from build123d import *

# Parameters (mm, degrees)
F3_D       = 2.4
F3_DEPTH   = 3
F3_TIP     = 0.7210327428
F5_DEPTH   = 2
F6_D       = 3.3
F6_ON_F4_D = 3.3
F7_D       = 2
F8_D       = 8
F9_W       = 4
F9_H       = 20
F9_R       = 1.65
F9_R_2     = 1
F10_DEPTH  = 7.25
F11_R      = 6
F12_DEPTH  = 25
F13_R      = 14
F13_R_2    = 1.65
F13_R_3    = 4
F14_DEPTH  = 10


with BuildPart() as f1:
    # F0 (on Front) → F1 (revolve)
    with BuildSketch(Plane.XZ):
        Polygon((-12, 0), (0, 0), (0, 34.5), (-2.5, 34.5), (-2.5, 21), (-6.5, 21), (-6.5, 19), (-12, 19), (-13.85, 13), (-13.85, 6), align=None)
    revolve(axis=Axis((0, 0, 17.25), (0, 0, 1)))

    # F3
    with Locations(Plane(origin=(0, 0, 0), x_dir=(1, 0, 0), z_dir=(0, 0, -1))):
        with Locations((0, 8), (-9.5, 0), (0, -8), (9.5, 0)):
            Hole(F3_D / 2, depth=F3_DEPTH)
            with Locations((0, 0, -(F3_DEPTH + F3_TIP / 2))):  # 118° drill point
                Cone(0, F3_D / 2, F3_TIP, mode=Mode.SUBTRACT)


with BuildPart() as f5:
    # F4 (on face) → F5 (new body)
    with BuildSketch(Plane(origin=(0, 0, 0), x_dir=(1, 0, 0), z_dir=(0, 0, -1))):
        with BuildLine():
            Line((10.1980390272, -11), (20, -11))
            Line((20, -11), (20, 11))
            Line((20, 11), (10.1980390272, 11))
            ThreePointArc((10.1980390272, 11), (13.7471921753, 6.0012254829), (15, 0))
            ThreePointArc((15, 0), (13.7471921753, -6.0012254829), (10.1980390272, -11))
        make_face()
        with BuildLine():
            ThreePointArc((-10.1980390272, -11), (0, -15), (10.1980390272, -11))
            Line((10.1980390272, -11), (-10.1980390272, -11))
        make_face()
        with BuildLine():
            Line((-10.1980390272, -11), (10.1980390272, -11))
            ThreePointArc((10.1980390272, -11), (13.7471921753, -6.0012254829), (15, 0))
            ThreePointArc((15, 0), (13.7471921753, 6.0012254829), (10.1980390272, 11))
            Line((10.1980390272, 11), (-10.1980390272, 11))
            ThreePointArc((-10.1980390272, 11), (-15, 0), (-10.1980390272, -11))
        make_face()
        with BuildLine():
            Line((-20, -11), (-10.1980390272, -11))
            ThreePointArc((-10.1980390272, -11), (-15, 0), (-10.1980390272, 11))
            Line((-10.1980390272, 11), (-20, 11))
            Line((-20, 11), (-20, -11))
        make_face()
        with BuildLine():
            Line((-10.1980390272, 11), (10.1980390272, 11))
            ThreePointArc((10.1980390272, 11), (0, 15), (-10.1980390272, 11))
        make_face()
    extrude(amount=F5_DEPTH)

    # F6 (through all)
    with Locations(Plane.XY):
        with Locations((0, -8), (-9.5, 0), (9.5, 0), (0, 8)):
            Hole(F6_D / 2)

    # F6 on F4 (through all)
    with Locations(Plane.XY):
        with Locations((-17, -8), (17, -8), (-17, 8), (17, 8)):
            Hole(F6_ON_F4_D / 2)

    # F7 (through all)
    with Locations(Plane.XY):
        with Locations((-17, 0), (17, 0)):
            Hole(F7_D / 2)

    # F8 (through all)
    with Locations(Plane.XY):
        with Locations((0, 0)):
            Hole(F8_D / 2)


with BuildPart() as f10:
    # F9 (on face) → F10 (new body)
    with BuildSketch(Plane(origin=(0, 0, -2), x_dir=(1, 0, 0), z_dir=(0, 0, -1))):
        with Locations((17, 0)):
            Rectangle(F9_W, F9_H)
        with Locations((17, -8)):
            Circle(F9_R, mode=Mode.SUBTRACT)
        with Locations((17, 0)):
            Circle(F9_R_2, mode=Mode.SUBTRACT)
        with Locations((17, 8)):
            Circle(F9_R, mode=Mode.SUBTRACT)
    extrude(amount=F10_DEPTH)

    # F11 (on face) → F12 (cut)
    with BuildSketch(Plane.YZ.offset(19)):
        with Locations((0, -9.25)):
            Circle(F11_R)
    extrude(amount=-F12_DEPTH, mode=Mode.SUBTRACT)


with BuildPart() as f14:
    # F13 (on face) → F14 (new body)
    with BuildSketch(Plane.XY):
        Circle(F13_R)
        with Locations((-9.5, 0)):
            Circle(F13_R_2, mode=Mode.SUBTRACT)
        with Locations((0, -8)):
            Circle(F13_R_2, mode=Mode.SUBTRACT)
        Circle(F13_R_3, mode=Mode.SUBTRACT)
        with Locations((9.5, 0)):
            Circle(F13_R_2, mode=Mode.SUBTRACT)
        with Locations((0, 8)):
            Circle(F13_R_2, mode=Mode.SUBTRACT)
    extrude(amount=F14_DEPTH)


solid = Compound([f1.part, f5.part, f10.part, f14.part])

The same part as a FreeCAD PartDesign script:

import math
import FreeCAD as App
import Part
import Sketcher
from FreeCAD import Vector

doc = App.newDocument("Part")
body = doc.addObject("PartDesign::Body", "Body")

# Sketch on XZ plane
sketch1 = body.newObject("Sketcher::SketchObject", "Sketch")
sketch1.AttachmentSupport = (doc.getObject("XZ_Plane"), [""])
sketch1.MapMode = "FlatFace"
sketch1.addGeometry([
    Part.LineSegment(Vector(-12, 0, 0), Vector(0, 0, 0)),  # 0
    Part.LineSegment(Vector(0, 0, 0), Vector(0, 34.5, 0)),  # 1
    Part.LineSegment(Vector(0, 34.5, 0), Vector(-2.5, 34.5, 0)),  # 2
    Part.LineSegment(Vector(-2.5, 34.5, 0), Vector(-2.5, 21, 0)),  # 3
    Part.LineSegment(Vector(-2.5, 21, 0), Vector(-6.5, 21, 0)),  # 4
    Part.LineSegment(Vector(-6.5, 21, 0), Vector(-6.5, 19, 0)),  # 5
    Part.LineSegment(Vector(-6.5, 19, 0), Vector(-12, 19, 0)),  # 6
    Part.LineSegment(Vector(-12, 19, 0), Vector(-13.8, 13, 0)),  # 7
    Part.LineSegment(Vector(-13.8, 13, 0), Vector(-13.8, 6, 0)),  # 8
    Part.LineSegment(Vector(-13.8, 6, 0), Vector(-12, 0, 0)),  # 9
], False)
sketch1.addConstraint([
    Sketcher.Constraint("Coincident", 0, 2, 1, 1),
    Sketcher.Constraint("Coincident", 1, 2, 2, 1),
    Sketcher.Constraint("Coincident", 2, 2, 3, 1),
    Sketcher.Constraint("Coincident", 3, 2, 4, 1),
    Sketcher.Constraint("Coincident", 4, 2, 5, 1),
    Sketcher.Constraint("Coincident", 5, 2, 6, 1),
    Sketcher.Constraint("Coincident", 6, 2, 7, 1),
    Sketcher.Constraint("Coincident", 7, 2, 8, 1),
    Sketcher.Constraint("Coincident", 8, 2, 9, 1),
    Sketcher.Constraint("Coincident", 9, 2, 0, 1),
    Sketcher.Constraint("Horizontal", 0),
    Sketcher.Constraint("Vertical", 1),
    Sketcher.Constraint("Horizontal", 2),
    Sketcher.Constraint("Vertical", 3),
    Sketcher.Constraint("Horizontal", 4),
    Sketcher.Constraint("Vertical", 5),
    Sketcher.Constraint("Horizontal", 6),
    Sketcher.Constraint("Vertical", 8),
    Sketcher.Constraint("Coincident", 0, 2, -1, 1),
    Sketcher.Constraint("Vertical", 6, 2, 9, 2),
    Sketcher.Constraint("Equal", 7, 9),
    Sketcher.Constraint("DistanceX", 0, 1, 0, 2, 12.0),
    Sketcher.Constraint("DistanceX", 4, 2, 4, 1, 4.0),
    Sketcher.Constraint("DistanceY", 5, 2, 5, 1, 2.0),
    Sketcher.Constraint("DistanceY", 8, 2, 8, 1, 7.0),
    Sketcher.Constraint("DistanceX", 2, 2, 2, 1, 2.5),
    Sketcher.Constraint("DistanceY", 1, 1, 1, 2, 34.5),
    Sketcher.Constraint("DistanceY", 3, 2, 3, 1, 13.5),
    Sketcher.Constraint("DistanceX", 7, 2, -1, 1, 13.85),
])
revolution = body.newObject("PartDesign::Revolution", "Revolution")
revolution.Profile = sketch1
revolution.ReferenceAxis = (sketch1, ["V_Axis"])
revolution.Angle = 360

# Sketch on XY plane
sketch2 = body.newObject("Sketcher::SketchObject", "Sketch001")
sketch2.AttachmentSupport = (doc.getObject("XY_Plane"), [""])
sketch2.MapMode = "FlatFace"
sketch2.addGeometry([
    Part.Circle(Vector(0, -8, 0), Vector(0, 0, 1), 1.2),
    Part.Circle(Vector(-9.5, 0, 0), Vector(0, 0, 1), 1.2),
    Part.Circle(Vector(0, 8, 0), Vector(0, 0, 1), 1.2),
    Part.Circle(Vector(9.5, 0, 0), Vector(0, 0, 1), 1.2),
], False)
sketch2.addConstraint([
    Sketcher.Constraint("Equal", 0, 1),
    Sketcher.Constraint("Equal", 1, 2),
    Sketcher.Constraint("Equal", 2, 3),
    Sketcher.Constraint("Symmetric", 0, 3, 2, 3, -1, 1),
    Sketcher.Constraint("Symmetric", 1, 3, 3, 3, -1, 1),
    Sketcher.Constraint("PointOnObject", 0, 3, -2),
    Sketcher.Constraint("PointOnObject", 1, 3, -1),
    Sketcher.Constraint("Diameter", 0, 2.4),
    Sketcher.Constraint("DistanceY", 0, 3, -1, 1, 8.0),
    Sketcher.Constraint("DistanceX", 1, 3, 3, 3, 19.0),
])
doc.recompute()
hole = body.newObject("PartDesign::Hole", "Hole")
hole.Profile = sketch2
hole.ThreadType = "None"
hole.Diameter = 2.4
hole.DepthType = "Dimension"
hole.Depth = 3
hole.DrillPoint = "Angled"
hole.DrillPointAngle = 118
hole.Reversed = True
body2 = doc.addObject("PartDesign::Body", "Body001")

# Sketch on XY plane
sketch3 = body2.newObject("Sketcher::SketchObject", "Sketch002")
sketch3.AttachmentSupport = (doc.getObject("XY_Plane001"), [""])
sketch3.MapMode = "FlatFace"
sketch3.addGeometry([
    Part.LineSegment(Vector(10, 11, 0), Vector(20, 11, 0)),  # 0
    Part.LineSegment(Vector(20, 11, 0), Vector(20, -11, 0)),  # 1
    Part.LineSegment(Vector(20, -11, 0), Vector(10, -11, 0)),  # 2
    Part.ArcOfCircle(Part.Circle(Vector(0, 0, 0), Vector(0, 0, 1), 15), math.radians(-133), math.radians(-47)),  # 3
    Part.LineSegment(Vector(-10, -11, 0), Vector(-20, -11, 0)),  # 4
    Part.LineSegment(Vector(-20, -11, 0), Vector(-20, 11, 0)),  # 5
    Part.LineSegment(Vector(-20, 11, 0), Vector(-10, 11, 0)),  # 6
    Part.ArcOfCircle(Part.Circle(Vector(0, 0, 0), Vector(0, 0, 1), 15), math.radians(47), math.radians(133)),  # 7
], False)
sketch3.addConstraint([
    Sketcher.Constraint("Coincident", 0, 2, 1, 1),
    Sketcher.Constraint("Coincident", 1, 2, 2, 1),
    Sketcher.Constraint("Coincident", 2, 2, 3, 2),
    Sketcher.Constraint("Coincident", 3, 1, 4, 1),
    Sketcher.Constraint("Coincident", 4, 2, 5, 1),
    Sketcher.Constraint("Coincident", 5, 2, 6, 1),
    Sketcher.Constraint("Coincident", 6, 2, 7, 2),
    Sketcher.Constraint("Coincident", 7, 1, 0, 1),
    Sketcher.Constraint("Horizontal", 0),
    Sketcher.Constraint("Vertical", 1),
    Sketcher.Constraint("Horizontal", 2),
    Sketcher.Constraint("Horizontal", 4),
    Sketcher.Constraint("Vertical", 5),
    Sketcher.Constraint("Horizontal", 6),
    Sketcher.Constraint("Coincident", 3, 3, -1, 1),
    Sketcher.Constraint("Coincident", 7, 3, -1, 1),
    Sketcher.Constraint("Equal", 3, 7),
    Sketcher.Constraint("Symmetric", 0, 2, 4, 2, -1, 1),
    Sketcher.Constraint("Horizontal", 2, 2, 3, 1),
    Sketcher.Constraint("Horizontal", 0, 2, 5, 2),
    Sketcher.Constraint("Radius", 3, 15.0),
    Sketcher.Constraint("DistanceY", 1, 2, 1, 1, 22.0),
    Sketcher.Constraint("DistanceX", -1, 1, 0, 2, 20.0),
])
pad1 = body2.newObject("PartDesign::Pad", "Pad")
pad1.Profile = sketch3
pad1.Length = 2
pad1.Reversed = True

# Sketch on XY plane
sketch4 = body2.newObject("Sketcher::SketchObject", "Sketch003")
sketch4.AttachmentSupport = (doc.getObject("XY_Plane001"), [""])
sketch4.MapMode = "FlatFace"
sketch4.addGeometry([
    Part.Circle(Vector(0, -8, 0), Vector(0, 0, 1), 1.6),
    Part.Circle(Vector(-9.5, 0, 0), Vector(0, 0, 1), 1.6),
    Part.Circle(Vector(9.5, 0, 0), Vector(0, 0, 1), 1.6),
    Part.Circle(Vector(0, 8, 0), Vector(0, 0, 1), 1.6),
], False)
sketch4.addConstraint([
    Sketcher.Constraint("Equal", 0, 1),
    Sketcher.Constraint("Equal", 1, 2),
    Sketcher.Constraint("Equal", 2, 3),
    Sketcher.Constraint("Symmetric", 1, 3, 2, 3, -1, 1),
    Sketcher.Constraint("Symmetric", 0, 3, 3, 3, -1, 1),
    Sketcher.Constraint("PointOnObject", 0, 3, -2),
    Sketcher.Constraint("PointOnObject", 1, 3, -1),
    Sketcher.Constraint("Diameter", 0, 3.3),
    Sketcher.Constraint("DistanceY", 0, 3, -1, 1, 8.0),
    Sketcher.Constraint("DistanceX", 1, 3, 2, 3, 19.0),
])
doc.recompute()
hole2 = body2.newObject("PartDesign::Hole", "Hole001")
hole2.Profile = sketch4
hole2.ThreadType = "None"
hole2.Diameter = 3.3
hole2.DepthType = "ThroughAll"

# Sketch on XY plane
sketch5 = body2.newObject("Sketcher::SketchObject", "Sketch004")
sketch5.AttachmentSupport = (doc.getObject("XY_Plane001"), [""])
sketch5.MapMode = "FlatFace"
sketch5.addGeometry([
    Part.Circle(Vector(-17, -8, 0), Vector(0, 0, 1), 1.6),
    Part.Circle(Vector(17, -8, 0), Vector(0, 0, 1), 1.6),
    Part.Circle(Vector(-17, 8, 0), Vector(0, 0, 1), 1.6),
    Part.Circle(Vector(17, 8, 0), Vector(0, 0, 1), 1.6),
], False)
sketch5.addConstraint([
    Sketcher.Constraint("Equal", 0, 1),
    Sketcher.Constraint("Equal", 1, 2),
    Sketcher.Constraint("Equal", 2, 3),
    Sketcher.Constraint("Symmetric", 1, 3, 2, 3, -1, 1),
    Sketcher.Constraint("Symmetric", 0, 3, 3, 3, -1, 1),
    Sketcher.Constraint("Symmetric", 0, 3, 1, 3, -2),
    Sketcher.Constraint("Diameter", 0, 3.3),
    Sketcher.Constraint("DistanceX", 0, 3, -1, 1, 17.0),
    Sketcher.Constraint("DistanceY", 0, 3, -1, 1, 8.0),
])
doc.recompute()
hole3 = body2.newObject("PartDesign::Hole", "Hole002")
hole3.Profile = sketch5
hole3.ThreadType = "None"
hole3.Diameter = 3.3
hole3.DepthType = "ThroughAll"

# Sketch on XY plane
sketch6 = body2.newObject("Sketcher::SketchObject", "Sketch005")
sketch6.AttachmentSupport = (doc.getObject("XY_Plane001"), [""])
sketch6.MapMode = "FlatFace"
sketch6.addGeometry([
    Part.Circle(Vector(-17, 0, 0), Vector(0, 0, 1), 1),
    Part.Circle(Vector(17, 0, 0), Vector(0, 0, 1), 1),
], False)
sketch6.addConstraint([
    Sketcher.Constraint("Equal", 0, 1),
    Sketcher.Constraint("Symmetric", 0, 3, 1, 3, -1, 1),
    Sketcher.Constraint("PointOnObject", 0, 3, -1),
    Sketcher.Constraint("Diameter", 0, 2.0),
    Sketcher.Constraint("DistanceX", 0, 3, -1, 1, 17.0),
])
doc.recompute()
hole4 = body2.newObject("PartDesign::Hole", "Hole003")
hole4.Profile = sketch6
hole4.ThreadType = "None"
hole4.Diameter = 2
hole4.DepthType = "ThroughAll"

# Sketch on XY plane
sketch7 = body2.newObject("Sketcher::SketchObject", "Sketch006")
sketch7.AttachmentSupport = (doc.getObject("XY_Plane001"), [""])
sketch7.MapMode = "FlatFace"
sketch7.addGeometry(Part.Circle(Vector(0, 0, 0), Vector(0, 0, 1), 4), False)
sketch7.addConstraint([
    Sketcher.Constraint("Coincident", 0, 3, -1, 1),
    Sketcher.Constraint("Diameter", 0, 8.0),
])
doc.recompute()
hole5 = body2.newObject("PartDesign::Hole", "Hole004")
hole5.Profile = sketch7
hole5.ThreadType = "None"
hole5.Diameter = 8
hole5.DepthType = "ThroughAll"
body3 = doc.addObject("PartDesign::Body", "Body002")

# Sketch on XY plane
sketch8 = body3.newObject("Sketcher::SketchObject", "Sketch007")
sketch8.AttachmentSupport = (doc.getObject("XY_Plane002"), [""])
sketch8.MapMode = "FlatFace"
sketch8.AttachmentOffset = App.Placement(Vector(0, 0, -2), App.Rotation())
sketch8.addGeometry([
    Part.LineSegment(Vector(15, -10, 0), Vector(15, 10, 0)),  # 0
    Part.LineSegment(Vector(15, 10, 0), Vector(19, 10, 0)),  # 1
    Part.LineSegment(Vector(19, 10, 0), Vector(19, -10, 0)),  # 2
    Part.LineSegment(Vector(19, -10, 0), Vector(15, -10, 0)),  # 3
    Part.Circle(Vector(17, 8, 0), Vector(0, 0, 1), 1.6),  # 4
    Part.Circle(Vector(17, 0, 0), Vector(0, 0, 1), 1),  # 5
    Part.Circle(Vector(17, -8, 0), Vector(0, 0, 1), 1.6),  # 6
], False)
sketch8.addConstraint([
    Sketcher.Constraint("Coincident", 0, 2, 1, 1),
    Sketcher.Constraint("Coincident", 1, 2, 2, 1),
    Sketcher.Constraint("Coincident", 2, 2, 3, 1),
    Sketcher.Constraint("Coincident", 3, 2, 0, 1),
    Sketcher.Constraint("Vertical", 0),
    Sketcher.Constraint("Horizontal", 1),
    Sketcher.Constraint("Vertical", 2),
    Sketcher.Constraint("Horizontal", 3),
    Sketcher.Constraint("Equal", 4, 6),
    Sketcher.Constraint("Symmetric", 4, 3, 6, 3, -1),
    Sketcher.Constraint("PointOnObject", 5, 3, -1),
    Sketcher.Constraint("Vertical", 4, 3, 5, 3),
    Sketcher.Constraint("Diameter", 5, 2.0),
    Sketcher.Constraint("Diameter", 4, 3.3),
    Sketcher.Constraint("DistanceX", 1, 1, 1, 2, 4.0),
    Sketcher.Constraint("DistanceY", 0, 1, 0, 2, 20.0),
    Sketcher.Constraint("DistanceX", -1, 1, 4, 3, 17.0),
    Sketcher.Constraint("DistanceY", -1, 1, 4, 3, 8.0),
    Sketcher.Constraint("DistanceX", -1, 1, 0, 2, 15.0),
    Sketcher.Constraint("DistanceY", -1, 1, 0, 2, 10.0),
])
pad2 = body3.newObject("PartDesign::Pad", "Pad001")
pad2.Profile = sketch8
pad2.Length = 7.25
pad2.Reversed = True

# Sketch on YZ plane
sketch9 = body3.newObject("Sketcher::SketchObject", "Sketch008")
sketch9.AttachmentSupport = (doc.getObject("YZ_Plane002"), [""])
sketch9.MapMode = "FlatFace"
sketch9.AttachmentOffset = App.Placement(Vector(0, 0, 19), App.Rotation())
sketch9.addGeometry(Part.Circle(Vector(0, -9, 0), Vector(0, 0, 1), 6), False)
sketch9.addConstraint([
    Sketcher.Constraint("PointOnObject", 0, 3, -2),
    Sketcher.Constraint("Diameter", 0, 12.0),
    Sketcher.Constraint("DistanceY", 0, 3, -1, 1, 9.25),
])
pocket1 = body3.newObject("PartDesign::Pocket", "Pocket")
pocket1.Profile = sketch9
pocket1.Length = 25
body4 = doc.addObject("PartDesign::Body", "Body003")

# Sketch on XY plane
sketch10 = body4.newObject("Sketcher::SketchObject", "Sketch009")
sketch10.AttachmentSupport = (doc.getObject("XY_Plane003"), [""])
sketch10.MapMode = "FlatFace"
sketch10.addGeometry([
    Part.Circle(Vector(0, 0, 0), Vector(0, 0, 1), 14),  # 0
    Part.Circle(Vector(0, -8, 0), Vector(0, 0, 1), 1.6),  # 1
    Part.Circle(Vector(-9.5, 0, 0), Vector(0, 0, 1), 1.6),  # 2
    Part.Circle(Vector(0, 0, 0), Vector(0, 0, 1), 4),  # 3
    Part.Circle(Vector(9.5, 0, 0), Vector(0, 0, 1), 1.6),  # 4
    Part.Circle(Vector(0, 8, 0), Vector(0, 0, 1), 1.6),  # 5
], False)
sketch10.addConstraint([
    Sketcher.Constraint("Coincident", 0, 3, -1, 1),
    Sketcher.Constraint("Coincident", 3, 3, -1, 1),
    Sketcher.Constraint("Equal", 1, 2),
    Sketcher.Constraint("Equal", 2, 4),
    Sketcher.Constraint("Equal", 4, 5),
    Sketcher.Constraint("Symmetric", 2, 3, 4, 3, -1, 1),
    Sketcher.Constraint("Symmetric", 1, 3, 5, 3, -1, 1),
    Sketcher.Constraint("PointOnObject", 1, 3, -2),
    Sketcher.Constraint("PointOnObject", 2, 3, -1),
    Sketcher.Constraint("Diameter", 0, 28.0),
    Sketcher.Constraint("Diameter", 3, 8.0),
    Sketcher.Constraint("Diameter", 1, 3.3),
    Sketcher.Constraint("DistanceY", 1, 3, -1, 1, 8.0),
    Sketcher.Constraint("DistanceX", 2, 3, 4, 3, 19.0),
])
pad3 = body4.newObject("PartDesign::Pad", "Pad002")
pad3.Profile = sketch10
pad3.Length = 10

doc.recompute()
